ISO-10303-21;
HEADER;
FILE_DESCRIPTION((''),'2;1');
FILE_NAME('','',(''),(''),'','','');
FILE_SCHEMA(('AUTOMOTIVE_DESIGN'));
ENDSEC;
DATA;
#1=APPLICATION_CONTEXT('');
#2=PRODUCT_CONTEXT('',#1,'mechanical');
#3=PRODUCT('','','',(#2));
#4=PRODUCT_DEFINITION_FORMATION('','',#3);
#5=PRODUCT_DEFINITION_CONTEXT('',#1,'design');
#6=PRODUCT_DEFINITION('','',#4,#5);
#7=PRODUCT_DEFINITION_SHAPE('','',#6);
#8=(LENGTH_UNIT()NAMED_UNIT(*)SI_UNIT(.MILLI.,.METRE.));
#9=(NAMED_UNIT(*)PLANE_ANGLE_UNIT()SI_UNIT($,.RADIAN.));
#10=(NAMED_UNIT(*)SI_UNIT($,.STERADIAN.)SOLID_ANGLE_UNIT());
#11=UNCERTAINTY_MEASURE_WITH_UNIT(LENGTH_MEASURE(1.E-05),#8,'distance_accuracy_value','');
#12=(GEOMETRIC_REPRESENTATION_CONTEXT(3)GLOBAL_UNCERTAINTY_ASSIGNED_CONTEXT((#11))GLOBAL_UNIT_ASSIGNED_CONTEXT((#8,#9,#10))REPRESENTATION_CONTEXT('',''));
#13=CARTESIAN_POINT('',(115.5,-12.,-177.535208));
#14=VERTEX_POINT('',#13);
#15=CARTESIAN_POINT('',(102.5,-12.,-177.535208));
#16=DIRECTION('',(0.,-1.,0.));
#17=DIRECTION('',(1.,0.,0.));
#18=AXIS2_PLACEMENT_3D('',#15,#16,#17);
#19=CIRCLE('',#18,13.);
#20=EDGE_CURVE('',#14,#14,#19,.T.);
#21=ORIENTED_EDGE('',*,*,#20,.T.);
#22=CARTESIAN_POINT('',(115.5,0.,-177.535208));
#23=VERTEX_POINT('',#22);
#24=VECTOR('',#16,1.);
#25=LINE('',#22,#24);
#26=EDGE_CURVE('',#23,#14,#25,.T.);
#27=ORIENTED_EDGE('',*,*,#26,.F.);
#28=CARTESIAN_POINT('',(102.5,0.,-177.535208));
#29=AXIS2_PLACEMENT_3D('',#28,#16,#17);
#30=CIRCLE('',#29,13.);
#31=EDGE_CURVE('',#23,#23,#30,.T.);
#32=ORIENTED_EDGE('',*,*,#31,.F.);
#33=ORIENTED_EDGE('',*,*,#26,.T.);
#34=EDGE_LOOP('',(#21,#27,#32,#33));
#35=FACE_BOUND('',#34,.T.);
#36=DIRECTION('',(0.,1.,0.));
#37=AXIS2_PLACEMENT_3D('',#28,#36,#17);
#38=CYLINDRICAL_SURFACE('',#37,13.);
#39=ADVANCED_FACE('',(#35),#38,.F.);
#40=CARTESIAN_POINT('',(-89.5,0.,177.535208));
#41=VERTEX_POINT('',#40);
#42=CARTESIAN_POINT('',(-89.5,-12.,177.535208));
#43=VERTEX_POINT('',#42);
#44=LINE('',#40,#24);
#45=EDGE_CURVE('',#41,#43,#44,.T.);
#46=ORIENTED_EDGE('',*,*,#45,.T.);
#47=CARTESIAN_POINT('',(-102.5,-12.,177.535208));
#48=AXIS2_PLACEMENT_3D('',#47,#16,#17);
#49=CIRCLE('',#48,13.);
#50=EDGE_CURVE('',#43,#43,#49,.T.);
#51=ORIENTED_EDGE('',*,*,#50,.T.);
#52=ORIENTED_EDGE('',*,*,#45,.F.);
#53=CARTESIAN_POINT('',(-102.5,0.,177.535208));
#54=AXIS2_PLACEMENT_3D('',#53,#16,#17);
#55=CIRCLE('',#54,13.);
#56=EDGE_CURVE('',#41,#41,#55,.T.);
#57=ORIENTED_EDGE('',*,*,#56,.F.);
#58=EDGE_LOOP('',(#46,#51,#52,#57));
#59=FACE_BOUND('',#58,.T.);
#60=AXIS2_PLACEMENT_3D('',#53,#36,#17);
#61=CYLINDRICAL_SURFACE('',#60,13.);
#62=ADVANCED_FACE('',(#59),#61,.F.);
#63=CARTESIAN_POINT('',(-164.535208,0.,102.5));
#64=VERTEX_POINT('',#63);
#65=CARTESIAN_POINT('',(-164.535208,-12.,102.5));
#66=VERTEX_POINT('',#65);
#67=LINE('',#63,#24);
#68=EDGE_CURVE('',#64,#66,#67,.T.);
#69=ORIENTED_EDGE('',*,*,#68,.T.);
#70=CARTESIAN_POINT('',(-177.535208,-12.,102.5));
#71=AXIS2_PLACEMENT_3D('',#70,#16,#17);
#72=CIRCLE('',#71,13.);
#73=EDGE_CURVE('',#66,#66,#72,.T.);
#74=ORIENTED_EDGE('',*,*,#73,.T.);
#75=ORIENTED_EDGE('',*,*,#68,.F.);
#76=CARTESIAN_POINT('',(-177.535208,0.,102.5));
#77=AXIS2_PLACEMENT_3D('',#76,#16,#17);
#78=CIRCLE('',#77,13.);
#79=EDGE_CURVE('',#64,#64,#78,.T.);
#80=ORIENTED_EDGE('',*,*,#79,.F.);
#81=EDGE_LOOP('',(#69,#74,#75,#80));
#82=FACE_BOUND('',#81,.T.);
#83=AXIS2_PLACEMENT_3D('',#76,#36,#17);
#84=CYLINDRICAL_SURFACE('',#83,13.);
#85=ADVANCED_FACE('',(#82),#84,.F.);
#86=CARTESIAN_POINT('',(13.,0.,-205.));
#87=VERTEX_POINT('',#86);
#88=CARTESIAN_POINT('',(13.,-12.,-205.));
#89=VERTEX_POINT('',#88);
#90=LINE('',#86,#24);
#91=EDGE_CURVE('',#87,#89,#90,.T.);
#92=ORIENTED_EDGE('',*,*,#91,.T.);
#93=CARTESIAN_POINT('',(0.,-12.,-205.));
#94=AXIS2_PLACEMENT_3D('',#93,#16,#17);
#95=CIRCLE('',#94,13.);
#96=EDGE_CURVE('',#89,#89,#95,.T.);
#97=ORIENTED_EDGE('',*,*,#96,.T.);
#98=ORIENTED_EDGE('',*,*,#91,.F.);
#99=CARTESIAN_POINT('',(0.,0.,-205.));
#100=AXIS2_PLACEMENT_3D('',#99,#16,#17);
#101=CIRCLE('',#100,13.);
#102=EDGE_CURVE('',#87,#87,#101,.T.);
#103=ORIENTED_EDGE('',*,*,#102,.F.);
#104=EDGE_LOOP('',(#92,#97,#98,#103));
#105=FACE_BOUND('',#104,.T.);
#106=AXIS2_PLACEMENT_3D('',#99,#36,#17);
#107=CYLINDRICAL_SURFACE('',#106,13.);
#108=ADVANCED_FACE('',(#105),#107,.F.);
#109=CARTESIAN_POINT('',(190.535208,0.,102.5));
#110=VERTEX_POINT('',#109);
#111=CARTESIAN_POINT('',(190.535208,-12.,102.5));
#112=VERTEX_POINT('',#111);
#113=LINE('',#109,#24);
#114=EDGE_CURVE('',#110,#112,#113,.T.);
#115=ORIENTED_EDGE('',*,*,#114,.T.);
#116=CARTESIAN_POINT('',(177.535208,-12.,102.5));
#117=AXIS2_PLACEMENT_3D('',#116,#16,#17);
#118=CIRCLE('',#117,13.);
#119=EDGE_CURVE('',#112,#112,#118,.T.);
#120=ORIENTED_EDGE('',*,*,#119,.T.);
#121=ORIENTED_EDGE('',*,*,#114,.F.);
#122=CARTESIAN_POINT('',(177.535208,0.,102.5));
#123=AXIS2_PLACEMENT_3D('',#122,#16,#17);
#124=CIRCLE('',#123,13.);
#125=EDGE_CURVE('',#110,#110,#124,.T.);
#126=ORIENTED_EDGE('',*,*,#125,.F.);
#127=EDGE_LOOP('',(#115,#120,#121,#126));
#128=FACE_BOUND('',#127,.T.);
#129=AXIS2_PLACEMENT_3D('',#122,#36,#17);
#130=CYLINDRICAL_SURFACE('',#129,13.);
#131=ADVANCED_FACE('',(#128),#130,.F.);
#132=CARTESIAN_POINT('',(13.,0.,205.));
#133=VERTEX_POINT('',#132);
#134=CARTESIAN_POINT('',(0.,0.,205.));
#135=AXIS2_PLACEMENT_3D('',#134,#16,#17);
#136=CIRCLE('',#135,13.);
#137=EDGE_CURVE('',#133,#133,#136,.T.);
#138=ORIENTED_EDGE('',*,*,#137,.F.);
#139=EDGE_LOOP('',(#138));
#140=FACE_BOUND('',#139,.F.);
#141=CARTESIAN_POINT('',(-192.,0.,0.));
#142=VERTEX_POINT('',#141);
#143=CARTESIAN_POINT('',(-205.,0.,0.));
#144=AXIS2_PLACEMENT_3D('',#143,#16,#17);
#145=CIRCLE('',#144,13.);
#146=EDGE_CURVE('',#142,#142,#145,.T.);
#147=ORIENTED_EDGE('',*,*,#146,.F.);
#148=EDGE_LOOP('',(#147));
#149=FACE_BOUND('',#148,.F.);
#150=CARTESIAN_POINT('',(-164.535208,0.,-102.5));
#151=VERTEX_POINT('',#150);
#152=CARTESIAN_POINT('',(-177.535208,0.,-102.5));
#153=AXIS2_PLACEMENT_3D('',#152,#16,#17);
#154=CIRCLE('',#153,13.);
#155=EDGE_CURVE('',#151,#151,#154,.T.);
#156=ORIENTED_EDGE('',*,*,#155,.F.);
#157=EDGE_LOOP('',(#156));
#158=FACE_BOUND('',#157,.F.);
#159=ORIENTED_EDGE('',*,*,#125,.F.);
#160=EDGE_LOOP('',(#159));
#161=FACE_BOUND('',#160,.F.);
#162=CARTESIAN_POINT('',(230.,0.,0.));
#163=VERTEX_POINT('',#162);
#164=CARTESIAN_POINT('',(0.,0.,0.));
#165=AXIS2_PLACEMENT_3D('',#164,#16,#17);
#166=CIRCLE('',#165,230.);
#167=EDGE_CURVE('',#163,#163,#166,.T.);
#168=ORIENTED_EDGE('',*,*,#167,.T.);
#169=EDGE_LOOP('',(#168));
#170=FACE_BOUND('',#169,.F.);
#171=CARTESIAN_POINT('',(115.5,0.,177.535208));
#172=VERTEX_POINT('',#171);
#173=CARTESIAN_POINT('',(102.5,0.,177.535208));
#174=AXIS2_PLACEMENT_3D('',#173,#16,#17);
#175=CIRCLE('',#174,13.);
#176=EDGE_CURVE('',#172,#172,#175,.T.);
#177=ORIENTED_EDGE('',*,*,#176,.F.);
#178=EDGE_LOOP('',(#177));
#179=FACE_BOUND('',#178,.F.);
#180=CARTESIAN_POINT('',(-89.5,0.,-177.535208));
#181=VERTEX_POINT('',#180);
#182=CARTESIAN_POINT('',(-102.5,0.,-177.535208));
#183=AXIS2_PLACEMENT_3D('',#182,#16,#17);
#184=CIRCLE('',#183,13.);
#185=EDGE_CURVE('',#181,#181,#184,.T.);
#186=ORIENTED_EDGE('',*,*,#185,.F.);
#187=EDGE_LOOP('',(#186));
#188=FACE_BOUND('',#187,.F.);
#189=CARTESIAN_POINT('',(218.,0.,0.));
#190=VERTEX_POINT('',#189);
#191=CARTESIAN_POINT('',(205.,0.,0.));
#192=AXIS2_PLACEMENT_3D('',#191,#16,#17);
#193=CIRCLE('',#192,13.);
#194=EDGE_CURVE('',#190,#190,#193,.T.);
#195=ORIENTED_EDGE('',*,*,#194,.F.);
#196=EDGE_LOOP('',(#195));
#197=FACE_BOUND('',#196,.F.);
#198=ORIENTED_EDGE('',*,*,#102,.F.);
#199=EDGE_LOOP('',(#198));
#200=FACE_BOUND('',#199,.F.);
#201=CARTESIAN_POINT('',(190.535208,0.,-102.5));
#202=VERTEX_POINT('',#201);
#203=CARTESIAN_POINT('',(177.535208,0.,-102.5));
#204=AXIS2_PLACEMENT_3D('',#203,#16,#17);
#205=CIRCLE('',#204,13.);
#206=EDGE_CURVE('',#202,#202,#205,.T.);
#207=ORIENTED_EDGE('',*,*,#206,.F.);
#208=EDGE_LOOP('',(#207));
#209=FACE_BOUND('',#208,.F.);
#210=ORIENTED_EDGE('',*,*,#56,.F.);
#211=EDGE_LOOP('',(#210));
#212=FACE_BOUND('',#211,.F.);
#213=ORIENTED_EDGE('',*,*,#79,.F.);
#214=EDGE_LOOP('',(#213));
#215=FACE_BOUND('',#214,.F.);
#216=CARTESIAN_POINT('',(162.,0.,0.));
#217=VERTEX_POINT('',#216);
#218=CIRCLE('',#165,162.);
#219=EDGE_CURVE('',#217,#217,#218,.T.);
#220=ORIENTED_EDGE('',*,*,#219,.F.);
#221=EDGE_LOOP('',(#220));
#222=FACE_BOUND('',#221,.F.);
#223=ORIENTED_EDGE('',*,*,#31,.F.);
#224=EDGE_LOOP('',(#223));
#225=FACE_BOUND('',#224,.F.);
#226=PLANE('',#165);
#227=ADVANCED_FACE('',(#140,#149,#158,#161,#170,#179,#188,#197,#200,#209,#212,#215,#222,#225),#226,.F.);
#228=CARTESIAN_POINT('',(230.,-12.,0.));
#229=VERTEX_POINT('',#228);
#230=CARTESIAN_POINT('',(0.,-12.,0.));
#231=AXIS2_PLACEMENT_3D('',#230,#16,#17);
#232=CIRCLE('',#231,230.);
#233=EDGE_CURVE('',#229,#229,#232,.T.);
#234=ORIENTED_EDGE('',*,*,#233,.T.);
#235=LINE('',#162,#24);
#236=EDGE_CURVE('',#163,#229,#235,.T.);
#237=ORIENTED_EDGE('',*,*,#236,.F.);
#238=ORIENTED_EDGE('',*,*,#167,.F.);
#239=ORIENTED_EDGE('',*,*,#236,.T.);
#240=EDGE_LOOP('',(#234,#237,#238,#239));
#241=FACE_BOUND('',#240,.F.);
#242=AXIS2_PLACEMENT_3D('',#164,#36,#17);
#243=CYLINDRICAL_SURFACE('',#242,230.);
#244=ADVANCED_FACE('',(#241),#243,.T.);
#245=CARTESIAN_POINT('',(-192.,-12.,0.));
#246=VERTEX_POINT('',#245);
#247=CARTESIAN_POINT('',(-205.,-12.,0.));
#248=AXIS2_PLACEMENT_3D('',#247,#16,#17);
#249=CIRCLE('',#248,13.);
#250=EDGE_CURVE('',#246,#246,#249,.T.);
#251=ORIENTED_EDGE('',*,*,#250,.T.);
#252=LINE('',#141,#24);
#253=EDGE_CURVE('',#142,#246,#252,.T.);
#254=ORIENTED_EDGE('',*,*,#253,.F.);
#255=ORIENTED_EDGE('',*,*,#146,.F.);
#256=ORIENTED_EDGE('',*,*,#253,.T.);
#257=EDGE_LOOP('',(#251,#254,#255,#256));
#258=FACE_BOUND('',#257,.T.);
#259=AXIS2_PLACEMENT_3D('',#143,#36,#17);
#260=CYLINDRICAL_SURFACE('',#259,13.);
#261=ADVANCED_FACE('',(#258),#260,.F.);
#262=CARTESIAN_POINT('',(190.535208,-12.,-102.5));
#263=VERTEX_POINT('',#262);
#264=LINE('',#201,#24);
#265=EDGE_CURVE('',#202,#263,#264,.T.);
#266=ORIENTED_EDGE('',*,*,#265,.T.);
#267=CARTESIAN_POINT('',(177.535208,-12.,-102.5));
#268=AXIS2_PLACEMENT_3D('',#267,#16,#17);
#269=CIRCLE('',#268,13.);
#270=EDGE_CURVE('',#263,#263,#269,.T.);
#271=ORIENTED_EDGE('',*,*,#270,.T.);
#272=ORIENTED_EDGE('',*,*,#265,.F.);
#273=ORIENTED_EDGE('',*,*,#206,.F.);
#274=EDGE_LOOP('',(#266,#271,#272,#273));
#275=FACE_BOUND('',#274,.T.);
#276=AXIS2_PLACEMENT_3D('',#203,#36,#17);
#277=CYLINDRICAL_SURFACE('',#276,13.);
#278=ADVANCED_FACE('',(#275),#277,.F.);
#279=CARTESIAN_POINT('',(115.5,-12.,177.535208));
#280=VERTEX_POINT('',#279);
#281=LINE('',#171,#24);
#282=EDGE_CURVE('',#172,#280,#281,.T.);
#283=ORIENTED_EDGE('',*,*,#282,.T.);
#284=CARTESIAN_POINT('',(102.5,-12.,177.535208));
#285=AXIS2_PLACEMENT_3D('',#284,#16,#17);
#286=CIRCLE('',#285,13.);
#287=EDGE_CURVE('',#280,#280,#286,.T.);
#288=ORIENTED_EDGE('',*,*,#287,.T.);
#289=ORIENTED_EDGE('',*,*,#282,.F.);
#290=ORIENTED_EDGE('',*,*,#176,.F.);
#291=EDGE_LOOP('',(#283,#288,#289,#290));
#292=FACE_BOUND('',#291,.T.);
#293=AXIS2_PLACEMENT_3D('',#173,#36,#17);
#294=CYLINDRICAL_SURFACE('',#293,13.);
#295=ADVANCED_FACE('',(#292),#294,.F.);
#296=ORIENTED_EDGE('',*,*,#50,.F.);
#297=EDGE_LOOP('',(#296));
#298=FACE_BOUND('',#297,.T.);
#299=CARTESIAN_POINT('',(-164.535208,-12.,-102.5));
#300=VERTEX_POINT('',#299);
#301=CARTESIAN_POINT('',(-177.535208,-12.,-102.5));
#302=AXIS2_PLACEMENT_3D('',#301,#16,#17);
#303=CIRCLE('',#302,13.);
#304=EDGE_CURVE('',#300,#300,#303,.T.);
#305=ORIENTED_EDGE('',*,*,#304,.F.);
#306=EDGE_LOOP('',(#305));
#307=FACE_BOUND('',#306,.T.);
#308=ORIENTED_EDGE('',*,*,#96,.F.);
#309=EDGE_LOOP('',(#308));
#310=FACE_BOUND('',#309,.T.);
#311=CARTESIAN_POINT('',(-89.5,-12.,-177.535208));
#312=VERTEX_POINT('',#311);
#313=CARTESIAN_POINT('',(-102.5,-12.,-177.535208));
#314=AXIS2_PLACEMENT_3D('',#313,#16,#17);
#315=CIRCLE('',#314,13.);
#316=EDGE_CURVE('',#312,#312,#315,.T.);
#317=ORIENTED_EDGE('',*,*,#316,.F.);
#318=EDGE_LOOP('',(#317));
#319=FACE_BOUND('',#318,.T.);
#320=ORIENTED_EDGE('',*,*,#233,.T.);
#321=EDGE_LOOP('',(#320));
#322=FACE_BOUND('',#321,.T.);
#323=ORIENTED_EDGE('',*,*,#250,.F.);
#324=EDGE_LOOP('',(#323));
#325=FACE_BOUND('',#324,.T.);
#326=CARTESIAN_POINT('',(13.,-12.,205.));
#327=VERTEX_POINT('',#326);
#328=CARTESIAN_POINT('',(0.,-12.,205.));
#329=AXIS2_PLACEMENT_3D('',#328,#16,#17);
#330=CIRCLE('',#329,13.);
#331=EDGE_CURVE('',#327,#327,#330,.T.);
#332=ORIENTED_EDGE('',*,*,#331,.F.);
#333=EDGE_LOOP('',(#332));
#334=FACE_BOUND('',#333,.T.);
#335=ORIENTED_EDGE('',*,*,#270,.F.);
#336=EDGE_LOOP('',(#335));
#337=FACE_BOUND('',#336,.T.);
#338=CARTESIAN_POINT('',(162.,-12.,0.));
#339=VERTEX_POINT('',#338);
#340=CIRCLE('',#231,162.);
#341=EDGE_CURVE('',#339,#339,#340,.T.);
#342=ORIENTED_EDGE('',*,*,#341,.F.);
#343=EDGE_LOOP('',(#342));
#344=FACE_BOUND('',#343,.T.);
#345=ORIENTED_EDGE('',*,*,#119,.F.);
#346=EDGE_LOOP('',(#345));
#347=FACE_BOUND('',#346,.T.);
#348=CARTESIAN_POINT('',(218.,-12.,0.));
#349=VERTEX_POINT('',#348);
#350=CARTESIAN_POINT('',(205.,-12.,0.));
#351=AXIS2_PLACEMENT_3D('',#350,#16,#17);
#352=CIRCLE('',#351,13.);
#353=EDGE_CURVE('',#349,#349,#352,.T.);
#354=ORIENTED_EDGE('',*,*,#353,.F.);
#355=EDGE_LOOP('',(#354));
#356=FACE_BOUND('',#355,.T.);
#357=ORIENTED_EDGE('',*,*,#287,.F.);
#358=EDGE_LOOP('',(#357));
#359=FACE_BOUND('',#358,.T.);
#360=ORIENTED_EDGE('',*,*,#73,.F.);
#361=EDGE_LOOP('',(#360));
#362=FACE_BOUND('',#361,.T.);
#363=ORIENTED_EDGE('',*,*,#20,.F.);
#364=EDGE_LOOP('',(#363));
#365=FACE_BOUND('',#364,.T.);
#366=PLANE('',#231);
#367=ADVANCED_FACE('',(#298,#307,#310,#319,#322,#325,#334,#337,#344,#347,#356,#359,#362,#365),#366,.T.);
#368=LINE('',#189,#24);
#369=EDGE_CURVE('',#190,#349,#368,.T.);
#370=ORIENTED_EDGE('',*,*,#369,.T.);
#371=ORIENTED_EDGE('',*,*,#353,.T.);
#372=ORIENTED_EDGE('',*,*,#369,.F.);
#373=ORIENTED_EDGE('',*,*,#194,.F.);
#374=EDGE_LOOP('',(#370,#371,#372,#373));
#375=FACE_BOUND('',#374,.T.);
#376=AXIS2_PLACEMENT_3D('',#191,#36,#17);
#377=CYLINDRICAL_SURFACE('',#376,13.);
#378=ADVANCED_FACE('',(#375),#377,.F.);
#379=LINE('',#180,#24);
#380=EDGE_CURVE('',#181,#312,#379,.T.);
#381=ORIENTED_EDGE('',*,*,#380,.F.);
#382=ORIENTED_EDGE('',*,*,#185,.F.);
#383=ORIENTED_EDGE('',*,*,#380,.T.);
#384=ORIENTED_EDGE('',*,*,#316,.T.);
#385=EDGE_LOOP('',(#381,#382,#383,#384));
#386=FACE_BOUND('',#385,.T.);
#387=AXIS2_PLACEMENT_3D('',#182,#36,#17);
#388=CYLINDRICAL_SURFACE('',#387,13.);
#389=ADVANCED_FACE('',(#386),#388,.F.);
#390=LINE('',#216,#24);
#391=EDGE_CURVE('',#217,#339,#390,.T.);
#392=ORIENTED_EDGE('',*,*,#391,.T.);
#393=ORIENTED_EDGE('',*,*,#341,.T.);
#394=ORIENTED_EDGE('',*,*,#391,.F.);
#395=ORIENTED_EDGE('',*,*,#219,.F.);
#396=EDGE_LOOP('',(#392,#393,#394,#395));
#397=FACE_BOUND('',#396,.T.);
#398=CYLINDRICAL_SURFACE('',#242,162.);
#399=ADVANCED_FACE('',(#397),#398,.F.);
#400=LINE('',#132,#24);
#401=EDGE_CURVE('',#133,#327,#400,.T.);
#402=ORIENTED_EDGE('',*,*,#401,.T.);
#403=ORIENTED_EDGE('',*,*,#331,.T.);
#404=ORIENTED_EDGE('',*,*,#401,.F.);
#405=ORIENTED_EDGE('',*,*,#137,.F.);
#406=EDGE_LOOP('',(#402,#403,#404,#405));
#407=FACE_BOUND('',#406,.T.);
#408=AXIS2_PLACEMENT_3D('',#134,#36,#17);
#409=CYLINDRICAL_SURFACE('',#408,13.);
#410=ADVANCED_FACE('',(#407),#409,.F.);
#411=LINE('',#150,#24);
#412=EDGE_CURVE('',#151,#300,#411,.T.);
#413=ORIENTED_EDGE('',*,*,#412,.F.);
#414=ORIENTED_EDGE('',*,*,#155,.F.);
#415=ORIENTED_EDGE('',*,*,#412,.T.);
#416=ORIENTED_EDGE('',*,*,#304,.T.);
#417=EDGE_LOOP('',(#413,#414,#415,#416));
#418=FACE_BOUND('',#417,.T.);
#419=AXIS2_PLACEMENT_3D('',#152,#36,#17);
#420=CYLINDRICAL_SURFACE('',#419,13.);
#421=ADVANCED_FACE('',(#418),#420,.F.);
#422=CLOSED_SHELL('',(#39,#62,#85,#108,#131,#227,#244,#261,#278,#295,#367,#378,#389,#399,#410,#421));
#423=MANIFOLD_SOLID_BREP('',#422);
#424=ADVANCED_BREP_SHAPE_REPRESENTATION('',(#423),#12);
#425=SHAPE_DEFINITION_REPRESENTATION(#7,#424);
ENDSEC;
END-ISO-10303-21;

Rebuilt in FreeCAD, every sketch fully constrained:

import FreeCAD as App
import Part
import Sketcher

V = App.Vector

doc = App.newDocument("Part")
body = doc.addObject("PartDesign::Body", "Body")

# Sketch on XZ plane
sketch1 = body.newObject("Sketcher::SketchObject", "Sketch")
sketch1.AttachmentSupport = (doc.getObject("XZ_Plane"), [""])
sketch1.MapMode = "FlatFace"
sketch1.addGeometry([
    Part.Circle(V(0, 0, 0), V(0, 0, 1), 230),  # 0
    Part.Circle(V(-102.5, -177.535208, 0), V(0, 0, 1), 13),  # 1
    Part.Circle(V(-177.535208, -102.5, 0), V(0, 0, 1), 13),  # 2
    Part.Circle(V(0, -205, 0), V(0, 0, 1), 13),  # 3
    Part.Circle(V(102.5, -177.535208, 0), V(0, 0, 1), 13),  # 4
    Part.Circle(V(177.535208, -102.5, 0), V(0, 0, 1), 13),  # 5
    Part.Circle(V(-205, 0, 0), V(0, 0, 1), 13),  # 6
    Part.Circle(V(-177.535208, 102.5, 0), V(0, 0, 1), 13),  # 7
    Part.Circle(V(-102.5, 177.535208, 0), V(0, 0, 1), 13),  # 8
    Part.Circle(V(0, 0, 0), V(0, 0, 1), 162),  # 9
    Part.Circle(V(205, 0, 0), V(0, 0, 1), 13),  # 10
    Part.Circle(V(177.535208, 102.5, 0), V(0, 0, 1), 13),  # 11
    Part.Circle(V(0, 205, 0), V(0, 0, 1), 13),  # 12
    Part.Circle(V(102.5, 177.535208, 0), V(0, 0, 1), 13),  # 13
], False)
sketch1.addConstraint([
    Sketcher.Constraint("Coincident", 0, 3, -1, 1),
    Sketcher.Constraint("Coincident", 9, 3, -1, 1),
    Sketcher.Constraint("Equal", 1, 2),
    Sketcher.Constraint("Equal", 2, 3),
    Sketcher.Constraint("Equal", 3, 4),
    Sketcher.Constraint("Equal", 4, 5),
    Sketcher.Constraint("Equal", 5, 6),
    Sketcher.Constraint("Equal", 6, 7),
    Sketcher.Constraint("Equal", 7, 8),
    Sketcher.Constraint("Equal", 8, 10),
    Sketcher.Constraint("Equal", 10, 11),
    Sketcher.Constraint("Equal", 11, 12),
    Sketcher.Constraint("Equal", 12, 13),
    Sketcher.Constraint("Symmetric", 5, 3, 7, 3, -1, 1),
    Sketcher.Constraint("Symmetric", 4, 3, 8, 3, -1, 1),
    Sketcher.Constraint("Symmetric", 6, 3, 10, 3, -1, 1),
    Sketcher.Constraint("Symmetric", 2, 3, 11, 3, -1, 1),
    Sketcher.Constraint("Symmetric", 3, 3, 12, 3, -1, 1),
    Sketcher.Constraint("Symmetric", 1, 3, 13, 3, -1, 1),
    Sketcher.Constraint("Symmetric", 1, 3, 4, 3, -2),
    Sketcher.Constraint("Symmetric", 2, 3, 5, 3, -2),
    Sketcher.Constraint("PointOnObject", 3, 3, -2),
    Sketcher.Constraint("PointOnObject", 6, 3, -1),
    Sketcher.Constraint("Diameter", 0, 460.0),
    Sketcher.Constraint("Diameter", 1, 26.0),
    Sketcher.Constraint("Diameter", 9, 324.0),
    Sketcher.Constraint("DistanceY", 3, 3, -1, 1, 205.0),
    Sketcher.Constraint("DistanceX", 6, 3, -1, 1, 205.0),
    Sketcher.Constraint("DistanceX", 1, 3, 4, 3, 205.0),
    Sketcher.Constraint("DistanceY", 2, 3, 7, 3, 205.0),
    Sketcher.Constraint("DistanceY", 1, 3, -1, 1, 177.535208),
    Sketcher.Constraint("DistanceX", 2, 3, -1, 1, 177.535208),
])
pad1 = body.newObject("PartDesign::Pad", "Pad")
pad1.Profile = sketch1
pad1.Length = 12

doc.recompute()
